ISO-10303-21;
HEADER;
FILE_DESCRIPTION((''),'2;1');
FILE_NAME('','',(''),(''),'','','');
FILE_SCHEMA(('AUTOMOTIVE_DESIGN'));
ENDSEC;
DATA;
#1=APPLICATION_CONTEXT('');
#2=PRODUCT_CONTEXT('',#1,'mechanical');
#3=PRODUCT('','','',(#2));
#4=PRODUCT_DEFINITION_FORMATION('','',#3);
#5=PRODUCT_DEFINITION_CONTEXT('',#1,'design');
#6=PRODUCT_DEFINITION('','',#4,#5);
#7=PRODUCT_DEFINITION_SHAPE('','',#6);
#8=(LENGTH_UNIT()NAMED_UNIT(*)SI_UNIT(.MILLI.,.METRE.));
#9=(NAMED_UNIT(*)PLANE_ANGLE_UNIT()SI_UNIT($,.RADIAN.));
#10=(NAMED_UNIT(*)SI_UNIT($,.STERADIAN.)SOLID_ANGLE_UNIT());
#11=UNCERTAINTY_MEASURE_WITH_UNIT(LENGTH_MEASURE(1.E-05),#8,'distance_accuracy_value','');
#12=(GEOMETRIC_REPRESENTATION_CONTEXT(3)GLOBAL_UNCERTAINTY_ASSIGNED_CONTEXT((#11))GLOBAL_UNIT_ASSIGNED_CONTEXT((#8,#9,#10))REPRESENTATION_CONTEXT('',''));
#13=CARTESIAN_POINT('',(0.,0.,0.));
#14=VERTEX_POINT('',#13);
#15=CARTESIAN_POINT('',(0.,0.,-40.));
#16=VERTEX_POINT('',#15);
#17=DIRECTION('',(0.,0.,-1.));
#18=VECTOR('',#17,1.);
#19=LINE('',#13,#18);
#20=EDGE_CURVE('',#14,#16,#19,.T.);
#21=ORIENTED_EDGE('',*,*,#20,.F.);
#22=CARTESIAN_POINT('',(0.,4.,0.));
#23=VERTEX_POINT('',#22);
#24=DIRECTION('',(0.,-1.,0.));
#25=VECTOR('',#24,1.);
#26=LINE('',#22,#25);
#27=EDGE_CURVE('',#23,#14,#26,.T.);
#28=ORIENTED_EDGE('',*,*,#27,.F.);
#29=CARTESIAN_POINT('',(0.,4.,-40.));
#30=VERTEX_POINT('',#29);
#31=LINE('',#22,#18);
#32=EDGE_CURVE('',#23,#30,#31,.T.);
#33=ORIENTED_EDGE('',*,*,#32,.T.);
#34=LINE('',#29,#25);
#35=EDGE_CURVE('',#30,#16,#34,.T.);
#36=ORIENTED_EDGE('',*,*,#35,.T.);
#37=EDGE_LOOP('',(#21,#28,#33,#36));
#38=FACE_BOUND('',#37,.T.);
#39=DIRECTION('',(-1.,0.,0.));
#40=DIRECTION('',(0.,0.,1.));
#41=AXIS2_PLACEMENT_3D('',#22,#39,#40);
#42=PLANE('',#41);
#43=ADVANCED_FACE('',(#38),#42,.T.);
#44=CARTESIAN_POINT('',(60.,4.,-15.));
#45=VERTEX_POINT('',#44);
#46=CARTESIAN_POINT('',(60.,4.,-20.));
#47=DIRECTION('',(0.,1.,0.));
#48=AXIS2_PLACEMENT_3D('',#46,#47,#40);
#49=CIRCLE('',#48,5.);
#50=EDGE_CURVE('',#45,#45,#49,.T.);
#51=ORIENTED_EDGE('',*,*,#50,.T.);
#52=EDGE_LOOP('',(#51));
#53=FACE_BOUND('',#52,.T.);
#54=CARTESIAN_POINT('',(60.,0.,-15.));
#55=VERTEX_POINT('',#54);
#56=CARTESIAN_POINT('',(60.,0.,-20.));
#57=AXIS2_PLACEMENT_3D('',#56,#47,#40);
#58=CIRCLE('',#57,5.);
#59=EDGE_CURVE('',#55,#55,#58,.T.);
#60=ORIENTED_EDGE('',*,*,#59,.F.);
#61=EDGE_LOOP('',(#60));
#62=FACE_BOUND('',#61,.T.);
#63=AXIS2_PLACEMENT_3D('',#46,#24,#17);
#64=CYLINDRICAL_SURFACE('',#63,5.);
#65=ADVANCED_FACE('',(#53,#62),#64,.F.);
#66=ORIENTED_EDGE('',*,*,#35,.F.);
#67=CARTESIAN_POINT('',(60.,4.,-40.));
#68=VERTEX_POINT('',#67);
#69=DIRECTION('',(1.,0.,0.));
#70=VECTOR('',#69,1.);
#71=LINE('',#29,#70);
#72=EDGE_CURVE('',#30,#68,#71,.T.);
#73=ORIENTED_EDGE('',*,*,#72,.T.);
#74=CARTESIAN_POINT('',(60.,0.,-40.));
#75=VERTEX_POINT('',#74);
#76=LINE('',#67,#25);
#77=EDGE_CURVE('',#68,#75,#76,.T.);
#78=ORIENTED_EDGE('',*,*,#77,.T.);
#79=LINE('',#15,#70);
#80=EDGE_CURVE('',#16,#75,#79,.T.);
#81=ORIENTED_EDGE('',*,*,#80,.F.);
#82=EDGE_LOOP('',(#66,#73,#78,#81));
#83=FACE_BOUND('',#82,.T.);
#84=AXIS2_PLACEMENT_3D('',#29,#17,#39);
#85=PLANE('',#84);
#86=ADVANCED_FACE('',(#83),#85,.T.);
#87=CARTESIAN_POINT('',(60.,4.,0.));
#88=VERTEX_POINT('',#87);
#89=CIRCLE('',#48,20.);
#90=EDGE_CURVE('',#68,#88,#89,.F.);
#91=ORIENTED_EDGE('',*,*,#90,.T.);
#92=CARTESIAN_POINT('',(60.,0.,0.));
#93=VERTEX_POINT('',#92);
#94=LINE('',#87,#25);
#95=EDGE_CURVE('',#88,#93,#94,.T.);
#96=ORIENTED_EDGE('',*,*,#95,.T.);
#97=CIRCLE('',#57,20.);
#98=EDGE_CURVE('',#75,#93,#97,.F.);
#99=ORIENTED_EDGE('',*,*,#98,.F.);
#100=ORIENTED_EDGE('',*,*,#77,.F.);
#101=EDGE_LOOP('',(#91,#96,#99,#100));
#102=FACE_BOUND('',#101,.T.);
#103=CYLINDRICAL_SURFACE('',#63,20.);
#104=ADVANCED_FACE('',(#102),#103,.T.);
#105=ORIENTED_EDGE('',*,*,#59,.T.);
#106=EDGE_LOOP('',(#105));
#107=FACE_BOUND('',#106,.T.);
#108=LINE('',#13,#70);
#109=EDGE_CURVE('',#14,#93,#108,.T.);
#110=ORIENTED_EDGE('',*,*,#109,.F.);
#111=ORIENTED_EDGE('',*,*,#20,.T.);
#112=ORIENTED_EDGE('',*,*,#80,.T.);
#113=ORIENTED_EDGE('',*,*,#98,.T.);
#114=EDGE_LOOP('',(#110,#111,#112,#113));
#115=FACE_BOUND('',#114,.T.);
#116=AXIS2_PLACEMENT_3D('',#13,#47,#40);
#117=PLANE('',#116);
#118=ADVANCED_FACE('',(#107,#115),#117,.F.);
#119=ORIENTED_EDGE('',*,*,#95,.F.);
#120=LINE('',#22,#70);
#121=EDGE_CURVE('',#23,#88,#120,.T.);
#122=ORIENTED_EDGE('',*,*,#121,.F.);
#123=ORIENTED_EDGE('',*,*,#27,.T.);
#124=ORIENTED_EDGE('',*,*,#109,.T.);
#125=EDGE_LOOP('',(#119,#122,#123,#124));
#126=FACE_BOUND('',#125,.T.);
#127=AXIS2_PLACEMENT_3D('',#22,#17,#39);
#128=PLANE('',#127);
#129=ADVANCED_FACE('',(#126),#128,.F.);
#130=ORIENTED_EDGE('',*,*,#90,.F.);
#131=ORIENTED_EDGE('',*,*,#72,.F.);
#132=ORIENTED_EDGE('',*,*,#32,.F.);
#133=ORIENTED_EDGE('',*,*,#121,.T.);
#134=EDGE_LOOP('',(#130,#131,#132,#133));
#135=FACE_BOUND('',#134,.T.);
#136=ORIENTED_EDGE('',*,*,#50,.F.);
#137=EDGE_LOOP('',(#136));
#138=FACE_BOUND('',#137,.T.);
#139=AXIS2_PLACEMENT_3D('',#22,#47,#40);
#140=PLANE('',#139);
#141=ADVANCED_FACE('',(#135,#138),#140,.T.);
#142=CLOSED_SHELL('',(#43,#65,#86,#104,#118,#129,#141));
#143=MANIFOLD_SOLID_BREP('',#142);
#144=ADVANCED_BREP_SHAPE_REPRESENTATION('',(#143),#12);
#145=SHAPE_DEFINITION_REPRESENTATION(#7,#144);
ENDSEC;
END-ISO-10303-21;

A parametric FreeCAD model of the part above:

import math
import FreeCAD as App
import Part
import Sketcher

doc = App.newDocument("Part")
body = doc.addObject("PartDesign::Body", "Body")

# Sketch on XZ plane
sketch1 = body.newObject("Sketcher::SketchObject", "Sketch")
sketch1.AttachmentSupport = (doc.getObject("XZ_Plane"), [""])
sketch1.MapMode = "FlatFace"
sketch1.addGeometry(Part.ArcOfCircle(Part.Circle(App.Vector(60, -20, 0), App.Vector(0, 0, 1), 20), math.radians(-90), math.radians(90)), False)
sketch1.addGeometry(Part.LineSegment(App.Vector(60, -40, 0), App.Vector(0, -40, 0)), False)
sketch1.addGeometry(Part.LineSegment(App.Vector(0, -40, 0), App.Vector(0, 0, 0)), False)
sketch1.addGeometry(Part.LineSegment(App.Vector(0, 0, 0), App.Vector(60, 0, 0)), False)
sketch1.addGeometry(Part.Circle(App.Vector(60, -20, 0), App.Vector(0, 0, 1), 5), False)
sketch1.addConstraint(Sketcher.Constraint("Tangent", 0, 1, 1, 1))
sketch1.addConstraint(Sketcher.Constraint("Coincident", 1, 2, 2, 1))
sketch1.addConstraint(Sketcher.Constraint("Coincident", 2, 2, 3, 1))
sketch1.addConstraint(Sketcher.Constraint("Tangent", 3, 2, 0, 2))
sketch1.addConstraint(Sketcher.Constraint("Horizontal", 1))
sketch1.addConstraint(Sketcher.Constraint("Vertical", 2))
sketch1.addConstraint(Sketcher.Constraint("Horizontal", 3))
sketch1.addConstraint(Sketcher.Constraint("Coincident", 2, 2, -1, 1))
sketch1.addConstraint(Sketcher.Constraint("Coincident", 4, 3, 0, 3))
sketch1.addConstraint(Sketcher.Constraint("Diameter", 4, 10.0))
sketch1.addConstraint(Sketcher.Constraint("Radius", 0, 20.0))
sketch1.addConstraint(Sketcher.Constraint("DistanceX", 1, 2, 1, 1, 60.0))
pad1 = body.newObject("PartDesign::Pad", "Pad")
pad1.Profile = sketch1
pad1.Length = 4
pad1.Reversed = True

doc.recompute()
